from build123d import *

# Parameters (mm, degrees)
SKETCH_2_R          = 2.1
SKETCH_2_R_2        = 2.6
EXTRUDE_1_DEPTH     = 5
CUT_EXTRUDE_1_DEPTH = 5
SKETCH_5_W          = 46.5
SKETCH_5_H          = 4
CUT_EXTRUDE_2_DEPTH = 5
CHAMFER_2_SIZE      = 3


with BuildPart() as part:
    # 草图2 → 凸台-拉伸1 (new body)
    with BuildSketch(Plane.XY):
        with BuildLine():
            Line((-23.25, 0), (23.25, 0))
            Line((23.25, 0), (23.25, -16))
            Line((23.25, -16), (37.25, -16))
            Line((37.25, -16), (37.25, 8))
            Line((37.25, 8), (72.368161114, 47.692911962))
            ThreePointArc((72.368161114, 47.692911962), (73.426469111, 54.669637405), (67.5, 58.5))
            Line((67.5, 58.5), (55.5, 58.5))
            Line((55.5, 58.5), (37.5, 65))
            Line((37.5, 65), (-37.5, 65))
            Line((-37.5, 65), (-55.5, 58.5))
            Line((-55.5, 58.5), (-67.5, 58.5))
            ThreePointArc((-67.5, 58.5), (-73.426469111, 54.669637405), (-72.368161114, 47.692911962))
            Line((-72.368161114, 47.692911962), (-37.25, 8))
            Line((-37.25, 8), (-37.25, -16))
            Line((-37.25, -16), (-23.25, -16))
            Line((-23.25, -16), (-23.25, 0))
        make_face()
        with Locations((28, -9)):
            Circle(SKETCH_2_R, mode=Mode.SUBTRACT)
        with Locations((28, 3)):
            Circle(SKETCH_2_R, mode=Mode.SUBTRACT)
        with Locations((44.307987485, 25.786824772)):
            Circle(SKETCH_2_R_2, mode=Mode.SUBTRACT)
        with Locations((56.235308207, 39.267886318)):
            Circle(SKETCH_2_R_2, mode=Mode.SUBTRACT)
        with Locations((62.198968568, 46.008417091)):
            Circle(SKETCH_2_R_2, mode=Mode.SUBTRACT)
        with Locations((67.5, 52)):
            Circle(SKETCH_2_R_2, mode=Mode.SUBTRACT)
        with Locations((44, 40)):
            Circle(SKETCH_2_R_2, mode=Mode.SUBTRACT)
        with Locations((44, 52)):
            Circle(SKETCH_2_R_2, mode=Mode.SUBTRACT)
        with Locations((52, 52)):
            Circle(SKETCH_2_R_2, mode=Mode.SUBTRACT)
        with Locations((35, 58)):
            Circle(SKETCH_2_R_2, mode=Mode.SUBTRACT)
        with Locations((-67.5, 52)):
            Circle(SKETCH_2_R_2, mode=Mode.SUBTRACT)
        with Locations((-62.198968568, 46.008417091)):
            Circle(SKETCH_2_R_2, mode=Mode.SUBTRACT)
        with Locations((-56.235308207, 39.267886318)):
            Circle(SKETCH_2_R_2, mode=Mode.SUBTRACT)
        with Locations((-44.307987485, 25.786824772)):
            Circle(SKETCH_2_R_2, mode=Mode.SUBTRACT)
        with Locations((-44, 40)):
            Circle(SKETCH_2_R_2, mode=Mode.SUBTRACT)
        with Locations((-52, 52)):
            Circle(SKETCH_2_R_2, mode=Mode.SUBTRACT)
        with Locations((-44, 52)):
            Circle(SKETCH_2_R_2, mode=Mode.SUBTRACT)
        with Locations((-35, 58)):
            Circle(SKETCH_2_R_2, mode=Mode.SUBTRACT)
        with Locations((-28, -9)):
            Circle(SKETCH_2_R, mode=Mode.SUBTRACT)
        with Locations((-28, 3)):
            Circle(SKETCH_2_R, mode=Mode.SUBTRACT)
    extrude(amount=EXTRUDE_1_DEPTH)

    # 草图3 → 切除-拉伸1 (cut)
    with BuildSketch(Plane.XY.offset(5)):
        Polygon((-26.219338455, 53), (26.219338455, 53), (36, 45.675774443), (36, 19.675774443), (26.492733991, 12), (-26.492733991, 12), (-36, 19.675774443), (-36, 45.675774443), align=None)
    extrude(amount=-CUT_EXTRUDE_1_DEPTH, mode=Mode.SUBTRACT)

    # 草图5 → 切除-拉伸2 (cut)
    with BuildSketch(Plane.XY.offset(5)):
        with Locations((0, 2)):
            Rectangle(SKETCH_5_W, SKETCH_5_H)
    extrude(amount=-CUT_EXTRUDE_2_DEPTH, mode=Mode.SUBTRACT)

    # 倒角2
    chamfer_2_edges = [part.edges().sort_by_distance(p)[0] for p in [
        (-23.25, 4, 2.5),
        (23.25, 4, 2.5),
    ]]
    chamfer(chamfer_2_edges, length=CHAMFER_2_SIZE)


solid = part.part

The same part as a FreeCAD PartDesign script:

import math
import FreeCAD as App
import Part
import Sketcher

V = App.Vector
Q = App.Units.Quantity


def edges_at(feature, points):
    """Names of the edges that pass closest to the given points."""
    edges = feature.Shape.Edges
    near = lambda p: min(range(len(edges)), key=lambda i: edges[i].distToShape(Part.Vertex(*p))[0])
    return sorted({f"Edge{near(p) + 1}" for p in points})

doc = App.newDocument("Part")
body = doc.addObject("PartDesign::Body", "Body")

# Sketch on XY plane
sketch1 = doc.addObject("Sketcher::SketchObject", "Sketch")
body.addObject(sketch1)
sketch1.AttachmentSupport = (doc.XY_Plane, [""])
sketch1.MapMode = "FlatFace"
sketch1.addGeometry([
    Part.LineSegment(V(-23.2, 0, 0), V(23.2, 0, 0)),  # 0
    Part.LineSegment(V(23.2, 0, 0), V(23.2, -16, 0)),  # 1
    Part.LineSegment(V(23.2, -16, 0), V(37.2, -16, 0)),  # 2
    Part.LineSegment(V(37.2, -16, 0), V(37.2, 8, 0)),  # 3
    Part.LineSegment(V(37.2, 8, 0), V(72.4, 47.7, 0)),  # 4
    Part.ArcOfCircle(Part.Circle(V(67.5, 52, 0), V(0, 0, 1), 6.5), math.radians(-42), math.radians(90)),  # 5
    Part.LineSegment(V(67.5, 58.5, 0), V(55.5, 58.5, 0)),  # 6
    Part.LineSegment(V(55.5, 58.5, 0), V(37.5, 65, 0)),  # 7
    Part.LineSegment(V(37.5, 65, 0), V(-37.5, 65, 0)),  # 8
    Part.LineSegment(V(-37.5, 65, 0), V(-55.5, 58.5, 0)),  # 9
    Part.LineSegment(V(-55.5, 58.5, 0), V(-67.5, 58.5, 0)),  # 10
    Part.ArcOfCircle(Part.Circle(V(-67.5, 52, 0), V(0, 0, 1), 6.5), math.radians(90), math.radians(222)),  # 11
    Part.LineSegment(V(-72.4, 47.7, 0), V(-37.2, 8, 0)),  # 12
    Part.LineSegment(V(-37.2, 8, 0), V(-37.2, -16, 0)),  # 13
    Part.LineSegment(V(-37.2, -16, 0), V(-23.2, -16, 0)),  # 14
    Part.LineSegment(V(-23.2, -16, 0), V(-23.2, 0, 0)),  # 15
    Part.Circle(V(-28, -9, 0), V(0, 0, 1), 2.1),  # 16
    Part.Circle(V(-28, 3, 0), V(0, 0, 1), 2.1),  # 17
    Part.Circle(V(28, -9, 0), V(0, 0, 1), 2.1),  # 18
    Part.Circle(V(28, 3, 0), V(0, 0, 1), 2.1),  # 19
    Part.Circle(V(-44.3, 25.8, 0), V(0, 0, 1), 2.6),  # 20
    Part.Circle(V(-56.2, 39.3, 0), V(0, 0, 1), 2.6),  # 21
    Part.Circle(V(-44, 40, 0), V(0, 0, 1), 2.6),  # 22
    Part.Circle(V(-62.2, 46, 0), V(0, 0, 1), 2.6),  # 23
    Part.Circle(V(-67.5, 52, 0), V(0, 0, 1), 2.6),  # 24
    Part.Circle(V(-52, 52, 0), V(0, 0, 1), 2.6),  # 25
    Part.Circle(V(-44, 52, 0), V(0, 0, 1), 2.6),  # 26
    Part.Circle(V(-35, 58, 0), V(0, 0, 1), 2.6),  # 27
    Part.Circle(V(44.3, 25.8, 0), V(0, 0, 1), 2.6),  # 28
    Part.Circle(V(44, 40, 0), V(0, 0, 1), 2.6),  # 29
    Part.Circle(V(56.2, 39.3, 0), V(0, 0, 1), 2.6),  # 30
    Part.Circle(V(35, 58, 0), V(0, 0, 1), 2.6),  # 31
    Part.Circle(V(62.2, 46, 0), V(0, 0, 1), 2.6),  # 32
    Part.Circle(V(44, 52, 0), V(0, 0, 1), 2.6),  # 33
    Part.Circle(V(52, 52, 0), V(0, 0, 1), 2.6),  # 34
    Part.Circle(V(67.5, 52, 0), V(0, 0, 1), 2.6),  # 35
], False)
sketch1.addConstraint([
    Sketcher.Constraint("Coincident", 0, 2, 1, 1),
    Sketcher.Constraint("Coincident", 1, 2, 2, 1),
    Sketcher.Constraint("Coincident", 2, 2, 3, 1),
    Sketcher.Constraint("Coincident", 3, 2, 4, 1),
    Sketcher.Constraint("Tangent", 4, 2, 5, 1),
    Sketcher.Constraint("Tangent", 5, 2, 6, 1),
    Sketcher.Constraint("Coincident", 6, 2, 7, 1),
    Sketcher.Constraint("Coincident", 7, 2, 8, 1),
    Sketcher.Constraint("Coincident", 8, 2, 9, 1),
    Sketcher.Constraint("Coincident", 9, 2, 10, 1),
    Sketcher.Constraint("Tangent", 10, 2, 11, 1),
    Sketcher.Constraint("Tangent", 11, 2, 12, 1),
    Sketcher.Constraint("Coincident", 12, 2, 13, 1),
    Sketcher.Constraint("Coincident", 13, 2, 14, 1),
    Sketcher.Constraint("Coincident", 14, 2, 15, 1),
    Sketcher.Constraint("Coincident", 15, 2, 0, 1),
    Sketcher.Constraint("Horizontal", 0),
    Sketcher.Constraint("Vertical", 1),
    Sketcher.Constraint("Horizontal", 2),
    Sketcher.Constraint("Vertical", 3),
    Sketcher.Constraint("Horizontal", 6),
    Sketcher.Constraint("Horizontal", 8),
    Sketcher.Constraint("Horizontal", 10),
    Sketcher.Constraint("Vertical", 13),
    Sketcher.Constraint("Horizontal", 14),
    Sketcher.Constraint("Vertical", 15),
    Sketcher.Constraint("Coincident", 24, 3, 11, 3),
    Sketcher.Constraint("Coincident", 35, 3, 5, 3),
    Sketcher.Constraint("Equal", 5, 11),
    Sketcher.Constraint("Equal", 16, 17),
    Sketcher.Constraint("Equal", 17, 18),
    Sketcher.Constraint("Equal", 18, 19),
    Sketcher.Constraint("Equal", 20, 21),
    Sketcher.Constraint("Equal", 21, 22),
    Sketcher.Constraint("Equal", 22, 23),
    Sketcher.Constraint("Equal", 23, 24),
    Sketcher.Constraint("Equal", 24, 25),
    Sketcher.Constraint("Equal", 25, 26),
    Sketcher.Constraint("Equal", 26, 27),
    Sketcher.Constraint("Equal", 27, 28),
    Sketcher.Constraint("Equal", 28, 29),
    Sketcher.Constraint("Equal", 29, 30),
    Sketcher.Constraint("Equal", 30, 31),
    Sketcher.Constraint("Equal", 31, 32),
    Sketcher.Constraint("Equal", 32, 33),
    Sketcher.Constraint("Equal", 33, 34),
    Sketcher.Constraint("Equal", 34, 35),
    Sketcher.Constraint("Symmetric", 0, 2, 15, 2, -1, 1),
    Sketcher.Constraint("Symmetric", 5, 3, 11, 3, -2),
    Sketcher.Constraint("Symmetric", 16, 3, 18, 3, -2),
    Sketcher.Constraint("Symmetric", 17, 3, 19, 3, -2),
    Sketcher.Constraint("Symmetric", 20, 3, 28, 3, -2),
    Sketcher.Constraint("Symmetric", 22, 3, 29, 3, -2),
    Sketcher.Constraint("Symmetric", 21, 3, 30, 3, -2),
    Sketcher.Constraint("Symmetric", 27, 3, 31, 3, -2),
    Sketcher.Constraint("Symmetric", 23, 3, 32, 3, -2),
    Sketcher.Constraint("Symmetric", 26, 3, 33, 3, -2),
    Sketcher.Constraint("Symmetric", 25, 3, 34, 3, -2),
    Sketcher.Constraint("Symmetric", 3, 2, 12, 2, -2),
    Sketcher.Constraint("Horizontal", 24, 3, 25, 3),
    Sketcher.Constraint("Horizontal", 25, 3, 26, 3),
    Sketcher.Constraint("Horizontal", 2, 2, 13, 2),
    Sketcher.Constraint("Vertical", 16, 3, 17, 3),
    Sketcher.Constraint("Vertical", 22, 3, 26, 3),
    Sketcher.Constraint("Equal", 6, 10),
    Sketcher.Constraint("Equal", 7, 9),
    Sketcher.Constraint("Diameter", 16, Q("4.2 mm")),
    Sketcher.Constraint("Diameter", 20, Q("5.2 mm")),
    Sketcher.Constraint("Radius", 5, Q("6.5 mm")),
    Sketcher.Constraint("DistanceX", 2, 1, 2, 2, Q("14 mm")),
    Sketcher.Constraint("DistanceX", 6, 2, 6, 1, Q("12 mm")),
    Sketcher.Constraint("DistanceX", 8, 2, 8, 1, Q("75 mm")),
    Sketcher.Constraint("DistanceY", 1, 2, 1, 1, Q("16 mm")),
    Sketcher.Constraint("DistanceY", 3, 1, 3, 2, Q("24 mm")),
    Sketcher.Constraint("DistanceX", 0, 1, 0, 2, Q("46.5 mm")),
    Sketcher.Constraint("DistanceY", -1, 1, 5, 3, Q("52 mm")),
    Sketcher.Constraint("DistanceX", 16, 3, -1, 1, Q("28 mm")),
    Sketcher.Constraint("DistanceY", 16, 3, -1, 1, Q("9 mm")),
    Sketcher.Constraint("DistanceY", -1, 1, 17, 3, Q("3 mm")),
    Sketcher.Constraint("DistanceX", 22, 3, -1, 1, Q("44 mm")),
    Sketcher.Constraint("DistanceY", -1, 1, 22, 3, Q("40 mm")),
    Sketcher.Constraint("DistanceX", 25, 3, -1, 1, Q("52 mm")),
    Sketcher.Constraint("DistanceX", 27, 3, -1, 1, Q("35 mm")),
    Sketcher.Constraint("DistanceY", -1, 1, 27, 3, Q("58 mm")),
    Sketcher.Constraint("DistanceY", -1, 1, 7, 2, Q("65 mm")),
    Sketcher.Constraint("DistanceX", 11, 3, 5, 3, Q("135 mm")),
    Sketcher.Constraint("DistanceX", 21, 3, -1, 1, Q("56.235308 mm")),
    Sketcher.Constraint("DistanceX", 23, 3, -1, 1, Q("62.198969 mm")),
    Sketcher.Constraint("DistanceX", 21, 3, 20, 3, Q("11.927321 mm")),
    Sketcher.Constraint("DistanceY", 20, 3, 21, 3, Q("13.481062 mm")),
    Sketcher.Constraint("DistanceY", 21, 3, 23, 3, Q("6.740531 mm")),
    Sketcher.Constraint("DistanceY", -1, 1, 20, 3, Q("25.786825 mm")),
])
pad1 = doc.addObject("PartDesign::Pad", "Pad")
body.addObject(pad1)
pad1.Profile = sketch1
pad1.Length = 5

# Sketch on XY plane
sketch2 = doc.addObject("Sketcher::SketchObject", "Sketch001")
body.addObject(sketch2)
sketch2.AttachmentSupport = (doc.XY_Plane, [""])
sketch2.MapMode = "FlatFace"
sketch2.AttachmentOffset = App.Placement(V(0, 0, 5), App.Rotation())
sketch2.addGeometry([
    Part.LineSegment(V(26, 53, 0), V(-26, 53, 0)),  # 0
    Part.LineSegment(V(-26, 53, 0), V(-36, 46, 0)),  # 1
    Part.LineSegment(V(-36, 46, 0), V(-36, 20, 0)),  # 2
    Part.LineSegment(V(-36, 20, 0), V(-26, 12, 0)),  # 3
    Part.LineSegment(V(-26, 12, 0), V(26, 12, 0)),  # 4
    Part.LineSegment(V(26, 12, 0), V(36, 20, 0)),  # 5
    Part.LineSegment(V(36, 20, 0), V(36, 46, 0)),  # 6
    Part.LineSegment(V(36, 46, 0), V(26, 53, 0)),  # 7
], False)
sketch2.addConstraint([
    Sketcher.Constraint("Coincident", 0, 2, 1, 1),
    Sketcher.Constraint("Coincident", 1, 2, 2, 1),
    Sketcher.Constraint("Coincident", 2, 2, 3, 1),
    Sketcher.Constraint("Coincident", 3, 2, 4, 1),
    Sketcher.Constraint("Coincident", 4, 2, 5, 1),
    Sketcher.Constraint("Coincident", 5, 2, 6, 1),
    Sketcher.Constraint("Coincident", 6, 2, 7, 1),
    Sketcher.Constraint("Coincident", 7, 2, 0, 1),
    Sketcher.Constraint("Horizontal", 0),
    Sketcher.Constraint("Vertical", 2),
    Sketcher.Constraint("Horizontal", 4),
    Sketcher.Constraint("Vertical", 6),
    Sketcher.Constraint("Symmetric", 2, 2, 5, 2, -2),
    Sketcher.Constraint("Horizontal", 1, 2, 6, 2),
    Sketcher.Constraint("Equal", 1, 3),
    Sketcher.Constraint("Equal", 3, 5),
    Sketcher.Constraint("Equal", 5, 7),
    Sketcher.Constraint("DistanceY", 2, 2, 2, 1, Q("26 mm")),
    Sketcher.Constraint("DistanceY", -1, 1, 0, 2, Q("53 mm")),
    Sketcher.Constraint("DistanceX", 1, 2, -1, 1, Q("36 mm")),
    Sketcher.Constraint("DistanceY", -1, 1, 3, 2, Q("12 mm")),
    Sketcher.Constraint("DistanceX", 0, 2, 0, 1, Q("52.438677 mm")),
    Sketcher.Constraint("DistanceX", 4, 1, 4, 2, Q("52.985468 mm")),
])
pocket1 = doc.addObject("PartDesign::Pocket", "Pocket")
body.addObject(pocket1)
pocket1.Profile = sketch2
pocket1.Length = 5

# Sketch on XY plane
sketch3 = doc.addObject("Sketcher::SketchObject", "Sketch002")
body.addObject(sketch3)
sketch3.AttachmentSupport = (doc.XY_Plane, [""])
sketch3.MapMode = "FlatFace"
sketch3.AttachmentOffset = App.Placement(V(0, 0, 5), App.Rotation())
sketch3.addGeometry([
    Part.LineSegment(V(-23.2, 4, 0), V(-23.2, 0, 0)),
    Part.LineSegment(V(-23.2, 0, 0), V(23.2, 0, 0)),
    Part.LineSegment(V(23.2, 0, 0), V(23.2, 4, 0)),
    Part.LineSegment(V(23.2, 4, 0), V(-23.2, 4, 0)),
], False)
sketch3.addConstraint([
    Sketcher.Constraint("Coincident", 0, 2, 1, 1),
    Sketcher.Constraint("Coincident", 1, 2, 2, 1),
    Sketcher.Constraint("Coincident", 2, 2, 3, 1),
    Sketcher.Constraint("Coincident", 3, 2, 0, 1),
    Sketcher.Constraint("Vertical", 0),
    Sketcher.Constraint("Horizontal", 1),
    Sketcher.Constraint("Vertical", 2),
    Sketcher.Constraint("Horizontal", 3),
    Sketcher.Constraint("Symmetric", 0, 2, 1, 2, -1, 1),
    Sketcher.Constraint("DistanceY", 0, 2, 0, 1, Q("4 mm")),
    Sketcher.Constraint("DistanceX", 1, 1, 1, 2, Q("46.5 mm")),
])
pocket2 = doc.addObject("PartDesign::Pocket", "Pocket001")
body.addObject(pocket2)
pocket2.Profile = sketch3
pocket2.Length = 5
doc.recompute()

chamfer = doc.addObject("PartDesign::Chamfer", "Chamfer")
body.addObject(chamfer)
chamfer.Base = (pocket2, edges_at(pocket2, [(-23.25, 4, 2.5), (23.25, 4, 2.5)]))
chamfer.Size = 3

doc.recompute()
